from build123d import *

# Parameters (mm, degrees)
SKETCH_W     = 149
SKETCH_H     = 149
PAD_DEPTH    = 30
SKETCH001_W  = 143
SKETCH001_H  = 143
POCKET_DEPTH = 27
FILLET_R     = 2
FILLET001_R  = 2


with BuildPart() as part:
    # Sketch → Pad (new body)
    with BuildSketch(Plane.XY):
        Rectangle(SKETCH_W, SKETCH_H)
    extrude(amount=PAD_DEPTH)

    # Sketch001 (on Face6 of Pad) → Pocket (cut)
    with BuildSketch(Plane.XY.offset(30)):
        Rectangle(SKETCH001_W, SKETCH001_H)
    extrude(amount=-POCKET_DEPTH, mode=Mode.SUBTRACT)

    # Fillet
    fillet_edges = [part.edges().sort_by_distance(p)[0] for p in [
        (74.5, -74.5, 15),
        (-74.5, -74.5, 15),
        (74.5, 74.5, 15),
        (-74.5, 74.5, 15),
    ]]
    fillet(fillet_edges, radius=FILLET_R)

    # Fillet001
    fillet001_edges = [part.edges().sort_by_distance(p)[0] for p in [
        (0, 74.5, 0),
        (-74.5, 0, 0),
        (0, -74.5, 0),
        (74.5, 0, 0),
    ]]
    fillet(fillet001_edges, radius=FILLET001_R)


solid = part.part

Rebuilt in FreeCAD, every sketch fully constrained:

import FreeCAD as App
import Part
import Sketcher
from FreeCAD import Vector


def edges_at(feature, points):
    """Names of the edges that pass closest to the given points."""
    edges = feature.Shape.Edges
    near = lambda p: min(range(len(edges)), key=lambda i: edges[i].distToShape(Part.Vertex(*p))[0])
    return sorted({f"Edge{near(p) + 1}" for p in points})

doc = App.newDocument("Part")
params = doc.addObject("Spreadsheet::Sheet", "Params")
for row, (alias, value) in enumerate([
    ("sketch1_width", "149 mm"),
    ("pad1_length", "30 mm"),
    ("sketch2_width", "143 mm"),
    ("pocket1_length", "27 mm"),
    ("fillet_radius", "2 mm"),
    ("fillet2_radius", "2 mm"),
], start=1):
    params.set(f"A{row}", alias)
    params.set(f"B{row}", "=" + value)
    params.setAlias(f"B{row}", alias)

body = doc.addObject("PartDesign::Body", "Body")

sketch1 = body.newObject("Sketcher::SketchObject", "Sketch")
sketch1.AttachmentSupport = (doc.getObject("XY_Plane"), [""])
sketch1.MapMode = "FlatFace"
sketch1.addGeometry([
    Part.LineSegment(Vector(-74, 74, 0), Vector(-74, -74, 0)),
    Part.LineSegment(Vector(-74, -74, 0), Vector(74, -74, 0)),
    Part.LineSegment(Vector(74, -74, 0), Vector(74, 74, 0)),
    Part.LineSegment(Vector(74, 74, 0), Vector(-74, 74, 0)),
], False)
sketch1.addConstraint([
    Sketcher.Constraint("Coincident", 0, 2, 1, 1),
    Sketcher.Constraint("Coincident", 1, 2, 2, 1),
    Sketcher.Constraint("Coincident", 2, 2, 3, 1),
    Sketcher.Constraint("Coincident", 3, 2, 0, 1),
    Sketcher.Constraint("Vertical", 0),
    Sketcher.Constraint("Horizontal", 1),
    Sketcher.Constraint("Vertical", 2),
    Sketcher.Constraint("Horizontal", 3),
    Sketcher.Constraint("Symmetric", 0, 2, 2, 2, -1, 1),
    Sketcher.Constraint("Equal", 3, 0),
    Sketcher.Constraint("DistanceX", 1, 1, 1, 2, 149.0),
])
sketch1.setExpression("Constraints[10]", "Params.sketch1_width")
pad1 = body.newObject("PartDesign::Pad", "Pad")
pad1.Profile = sketch1
pad1.setExpression("Length", "Params.pad1_length")

sketch2 = body.newObject("Sketcher::SketchObject", "Sketch001")
sketch2.AttachmentSupport = (doc.getObject("XY_Plane"), [""])
sketch2.MapMode = "FlatFace"
sketch2.AttachmentOffset = App.Placement(Vector(0, 0, 30), App.Rotation())
sketch2.addGeometry([
    Part.LineSegment(Vector(-72, 72, 0), Vector(-72, -72, 0)),
    Part.LineSegment(Vector(-72, -72, 0), Vector(72, -72, 0)),
    Part.LineSegment(Vector(72, -72, 0), Vector(72, 72, 0)),
    Part.LineSegment(Vector(72, 72, 0), Vector(-72, 72, 0)),
], False)
sketch2.addConstraint([
    Sketcher.Constraint("Coincident", 0, 2, 1, 1),
    Sketcher.Constraint("Coincident", 1, 2, 2, 1),
    Sketcher.Constraint("Coincident", 2, 2, 3, 1),
    Sketcher.Constraint("Coincident", 3, 2, 0, 1),
    Sketcher.Constraint("Vertical", 0),
    Sketcher.Constraint("Horizontal", 1),
    Sketcher.Constraint("Vertical", 2),
    Sketcher.Constraint("Horizontal", 3),
    Sketcher.Constraint("Symmetric", 0, 2, 2, 2, -1, 1),
    Sketcher.Constraint("Equal", 3, 0),
    Sketcher.Constraint("DistanceX", 1, 1, 1, 2, 143.0),
])
sketch2.setExpression("Constraints[10]", "Params.sketch2_width")
pocket1 = body.newObject("PartDesign::Pocket", "Pocket")
pocket1.Profile = sketch2
pocket1.setExpression("Length", "Params.pocket1_length")
doc.recompute()

fillet = body.newObject("PartDesign::Fillet", "Fillet")
fillet.Base = (pocket1, edges_at(pocket1, [
    (74.5, -74.5, 15),
    (-74.5, -74.5, 15),
    (74.5, 74.5, 15),
    (-74.5, 74.5, 15),
]))
fillet.setExpression("Radius", "Params.fillet_radius")
doc.recompute()

fillet2 = body.newObject("PartDesign::Fillet", "Fillet001")
fillet2.Base = (fillet, edges_at(fillet, [
    (0, 74.5, 0),
    (-74.5, 0, 0),
    (0, -74.5, 0),
    (74.5, 0, 0),
]))
fillet2.setExpression("Radius", "Params.fillet2_radius")

doc.recompute()
